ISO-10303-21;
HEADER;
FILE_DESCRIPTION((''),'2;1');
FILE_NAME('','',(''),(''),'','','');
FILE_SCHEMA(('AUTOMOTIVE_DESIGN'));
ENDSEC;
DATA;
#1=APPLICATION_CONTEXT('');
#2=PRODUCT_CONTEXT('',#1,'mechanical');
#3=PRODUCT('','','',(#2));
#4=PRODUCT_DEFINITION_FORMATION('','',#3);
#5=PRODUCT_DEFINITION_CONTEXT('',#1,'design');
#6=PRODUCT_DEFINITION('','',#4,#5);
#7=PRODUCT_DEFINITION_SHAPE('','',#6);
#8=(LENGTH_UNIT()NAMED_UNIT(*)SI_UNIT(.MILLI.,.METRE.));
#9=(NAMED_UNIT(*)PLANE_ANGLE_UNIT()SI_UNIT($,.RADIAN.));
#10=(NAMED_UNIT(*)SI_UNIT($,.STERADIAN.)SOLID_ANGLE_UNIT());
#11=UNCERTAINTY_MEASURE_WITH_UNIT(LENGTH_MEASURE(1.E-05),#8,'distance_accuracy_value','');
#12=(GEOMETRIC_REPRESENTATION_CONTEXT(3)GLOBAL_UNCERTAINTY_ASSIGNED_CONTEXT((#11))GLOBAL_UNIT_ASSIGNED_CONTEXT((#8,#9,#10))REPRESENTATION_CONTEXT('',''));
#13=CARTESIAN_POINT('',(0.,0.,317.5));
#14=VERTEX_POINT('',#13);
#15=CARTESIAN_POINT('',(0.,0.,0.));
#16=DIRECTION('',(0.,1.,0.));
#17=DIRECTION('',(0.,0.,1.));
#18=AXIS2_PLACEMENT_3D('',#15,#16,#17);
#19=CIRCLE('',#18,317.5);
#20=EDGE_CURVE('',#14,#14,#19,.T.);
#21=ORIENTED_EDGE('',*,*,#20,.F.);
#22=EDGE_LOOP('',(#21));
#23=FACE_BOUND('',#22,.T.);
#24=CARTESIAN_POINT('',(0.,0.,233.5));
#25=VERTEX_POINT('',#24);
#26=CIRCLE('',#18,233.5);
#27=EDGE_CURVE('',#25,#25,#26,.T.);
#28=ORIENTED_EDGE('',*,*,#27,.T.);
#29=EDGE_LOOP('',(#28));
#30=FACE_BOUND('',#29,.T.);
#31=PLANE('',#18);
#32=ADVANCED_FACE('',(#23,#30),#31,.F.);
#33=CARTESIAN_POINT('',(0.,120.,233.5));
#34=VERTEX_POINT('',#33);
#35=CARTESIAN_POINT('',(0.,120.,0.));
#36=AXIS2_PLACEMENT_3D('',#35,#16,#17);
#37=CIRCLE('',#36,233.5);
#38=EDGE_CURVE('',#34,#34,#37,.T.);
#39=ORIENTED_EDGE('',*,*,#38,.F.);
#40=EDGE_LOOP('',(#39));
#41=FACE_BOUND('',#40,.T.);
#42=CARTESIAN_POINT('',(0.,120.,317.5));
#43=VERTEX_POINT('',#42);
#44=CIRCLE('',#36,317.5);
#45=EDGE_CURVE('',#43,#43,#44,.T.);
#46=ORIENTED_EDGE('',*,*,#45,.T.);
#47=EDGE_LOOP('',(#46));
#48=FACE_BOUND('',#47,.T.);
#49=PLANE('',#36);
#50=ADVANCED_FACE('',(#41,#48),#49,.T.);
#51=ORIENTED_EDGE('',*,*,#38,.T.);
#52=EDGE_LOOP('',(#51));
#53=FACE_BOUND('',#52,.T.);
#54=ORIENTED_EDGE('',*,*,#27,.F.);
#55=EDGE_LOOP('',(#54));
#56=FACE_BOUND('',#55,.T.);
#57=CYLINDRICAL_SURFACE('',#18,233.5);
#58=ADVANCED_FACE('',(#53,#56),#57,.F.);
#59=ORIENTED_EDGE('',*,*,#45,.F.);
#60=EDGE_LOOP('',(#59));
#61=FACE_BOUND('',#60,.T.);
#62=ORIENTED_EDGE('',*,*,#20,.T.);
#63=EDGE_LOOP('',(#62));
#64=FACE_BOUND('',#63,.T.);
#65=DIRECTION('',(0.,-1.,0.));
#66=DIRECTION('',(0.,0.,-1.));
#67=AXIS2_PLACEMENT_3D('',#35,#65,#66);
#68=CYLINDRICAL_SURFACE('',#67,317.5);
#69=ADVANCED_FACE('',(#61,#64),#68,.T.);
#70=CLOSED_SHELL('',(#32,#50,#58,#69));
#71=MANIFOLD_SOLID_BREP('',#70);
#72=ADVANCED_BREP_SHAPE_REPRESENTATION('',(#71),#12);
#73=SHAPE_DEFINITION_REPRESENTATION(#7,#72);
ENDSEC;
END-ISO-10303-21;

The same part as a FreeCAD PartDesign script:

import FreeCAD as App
import Part
import Sketcher

V = App.Vector

doc = App.newDocument("Part")
params = doc.addObject("Spreadsheet::Sheet", "Params")
for row, (alias, value) in enumerate([
    ("sketch1_diameter", "635 mm"),
    ("pad1_length", "120 mm"),
    ("sketch2_diameter", "467 mm"),
], start=1):
    params.set(f"A{row}", alias)
    params.set(f"B{row}", "=" + value)
    params.setAlias(f"B{row}", alias)

body = doc.addObject("PartDesign::Body", "Body")

# Sketch on XZ plane
sketch1 = doc.addObject("Sketcher::SketchObject", "Sketch")
body.addObject(sketch1)
sketch1.AttachmentSupport = (doc.XZ_Plane, [""])
sketch1.MapMode = "FlatFace"
sketch1.addGeometry(Part.Circle(V(0, 0, 0), V(0, 0, 1), 318), False)
sketch1.addConstraint([
    Sketcher.Constraint("Coincident", 0, 3, -1, 1),
    Sketcher.Constraint("Diameter", 0, 635.0),
])
sketch1.setExpression("Constraints[1]", "Params.sketch1_diameter")
pad1 = doc.addObject("PartDesign::Pad", "Pad")
body.addObject(pad1)
pad1.Profile = sketch1
pad1.setExpression("Length", "Params.pad1_length")
pad1.Reversed = True

# Sketch on XZ plane
sketch2 = doc.addObject("Sketcher::SketchObject", "Sketch001")
body.addObject(sketch2)
sketch2.AttachmentSupport = (doc.XZ_Plane, [""])
sketch2.MapMode = "FlatFace"
sketch2.AttachmentOffset = App.Placement(V(0, 0, -120), App.Rotation())
sketch2.addGeometry(Part.Circle(V(0, 0, 0), V(0, 0, 1), 234), False)
sketch2.addConstraint([
    Sketcher.Constraint("Coincident", 0, 3, -1, 1),
    Sketcher.Constraint("Diameter", 0, 467.0),
])
sketch2.setExpression("Constraints[1]", "Params.sketch2_diameter")
pocket1 = doc.addObject("PartDesign::Pocket", "Pocket")
body.addObject(pocket1)
pocket1.Profile = sketch2
pocket1.Type = "ThroughAll"
pocket1.Reversed = True

doc.recompute()
